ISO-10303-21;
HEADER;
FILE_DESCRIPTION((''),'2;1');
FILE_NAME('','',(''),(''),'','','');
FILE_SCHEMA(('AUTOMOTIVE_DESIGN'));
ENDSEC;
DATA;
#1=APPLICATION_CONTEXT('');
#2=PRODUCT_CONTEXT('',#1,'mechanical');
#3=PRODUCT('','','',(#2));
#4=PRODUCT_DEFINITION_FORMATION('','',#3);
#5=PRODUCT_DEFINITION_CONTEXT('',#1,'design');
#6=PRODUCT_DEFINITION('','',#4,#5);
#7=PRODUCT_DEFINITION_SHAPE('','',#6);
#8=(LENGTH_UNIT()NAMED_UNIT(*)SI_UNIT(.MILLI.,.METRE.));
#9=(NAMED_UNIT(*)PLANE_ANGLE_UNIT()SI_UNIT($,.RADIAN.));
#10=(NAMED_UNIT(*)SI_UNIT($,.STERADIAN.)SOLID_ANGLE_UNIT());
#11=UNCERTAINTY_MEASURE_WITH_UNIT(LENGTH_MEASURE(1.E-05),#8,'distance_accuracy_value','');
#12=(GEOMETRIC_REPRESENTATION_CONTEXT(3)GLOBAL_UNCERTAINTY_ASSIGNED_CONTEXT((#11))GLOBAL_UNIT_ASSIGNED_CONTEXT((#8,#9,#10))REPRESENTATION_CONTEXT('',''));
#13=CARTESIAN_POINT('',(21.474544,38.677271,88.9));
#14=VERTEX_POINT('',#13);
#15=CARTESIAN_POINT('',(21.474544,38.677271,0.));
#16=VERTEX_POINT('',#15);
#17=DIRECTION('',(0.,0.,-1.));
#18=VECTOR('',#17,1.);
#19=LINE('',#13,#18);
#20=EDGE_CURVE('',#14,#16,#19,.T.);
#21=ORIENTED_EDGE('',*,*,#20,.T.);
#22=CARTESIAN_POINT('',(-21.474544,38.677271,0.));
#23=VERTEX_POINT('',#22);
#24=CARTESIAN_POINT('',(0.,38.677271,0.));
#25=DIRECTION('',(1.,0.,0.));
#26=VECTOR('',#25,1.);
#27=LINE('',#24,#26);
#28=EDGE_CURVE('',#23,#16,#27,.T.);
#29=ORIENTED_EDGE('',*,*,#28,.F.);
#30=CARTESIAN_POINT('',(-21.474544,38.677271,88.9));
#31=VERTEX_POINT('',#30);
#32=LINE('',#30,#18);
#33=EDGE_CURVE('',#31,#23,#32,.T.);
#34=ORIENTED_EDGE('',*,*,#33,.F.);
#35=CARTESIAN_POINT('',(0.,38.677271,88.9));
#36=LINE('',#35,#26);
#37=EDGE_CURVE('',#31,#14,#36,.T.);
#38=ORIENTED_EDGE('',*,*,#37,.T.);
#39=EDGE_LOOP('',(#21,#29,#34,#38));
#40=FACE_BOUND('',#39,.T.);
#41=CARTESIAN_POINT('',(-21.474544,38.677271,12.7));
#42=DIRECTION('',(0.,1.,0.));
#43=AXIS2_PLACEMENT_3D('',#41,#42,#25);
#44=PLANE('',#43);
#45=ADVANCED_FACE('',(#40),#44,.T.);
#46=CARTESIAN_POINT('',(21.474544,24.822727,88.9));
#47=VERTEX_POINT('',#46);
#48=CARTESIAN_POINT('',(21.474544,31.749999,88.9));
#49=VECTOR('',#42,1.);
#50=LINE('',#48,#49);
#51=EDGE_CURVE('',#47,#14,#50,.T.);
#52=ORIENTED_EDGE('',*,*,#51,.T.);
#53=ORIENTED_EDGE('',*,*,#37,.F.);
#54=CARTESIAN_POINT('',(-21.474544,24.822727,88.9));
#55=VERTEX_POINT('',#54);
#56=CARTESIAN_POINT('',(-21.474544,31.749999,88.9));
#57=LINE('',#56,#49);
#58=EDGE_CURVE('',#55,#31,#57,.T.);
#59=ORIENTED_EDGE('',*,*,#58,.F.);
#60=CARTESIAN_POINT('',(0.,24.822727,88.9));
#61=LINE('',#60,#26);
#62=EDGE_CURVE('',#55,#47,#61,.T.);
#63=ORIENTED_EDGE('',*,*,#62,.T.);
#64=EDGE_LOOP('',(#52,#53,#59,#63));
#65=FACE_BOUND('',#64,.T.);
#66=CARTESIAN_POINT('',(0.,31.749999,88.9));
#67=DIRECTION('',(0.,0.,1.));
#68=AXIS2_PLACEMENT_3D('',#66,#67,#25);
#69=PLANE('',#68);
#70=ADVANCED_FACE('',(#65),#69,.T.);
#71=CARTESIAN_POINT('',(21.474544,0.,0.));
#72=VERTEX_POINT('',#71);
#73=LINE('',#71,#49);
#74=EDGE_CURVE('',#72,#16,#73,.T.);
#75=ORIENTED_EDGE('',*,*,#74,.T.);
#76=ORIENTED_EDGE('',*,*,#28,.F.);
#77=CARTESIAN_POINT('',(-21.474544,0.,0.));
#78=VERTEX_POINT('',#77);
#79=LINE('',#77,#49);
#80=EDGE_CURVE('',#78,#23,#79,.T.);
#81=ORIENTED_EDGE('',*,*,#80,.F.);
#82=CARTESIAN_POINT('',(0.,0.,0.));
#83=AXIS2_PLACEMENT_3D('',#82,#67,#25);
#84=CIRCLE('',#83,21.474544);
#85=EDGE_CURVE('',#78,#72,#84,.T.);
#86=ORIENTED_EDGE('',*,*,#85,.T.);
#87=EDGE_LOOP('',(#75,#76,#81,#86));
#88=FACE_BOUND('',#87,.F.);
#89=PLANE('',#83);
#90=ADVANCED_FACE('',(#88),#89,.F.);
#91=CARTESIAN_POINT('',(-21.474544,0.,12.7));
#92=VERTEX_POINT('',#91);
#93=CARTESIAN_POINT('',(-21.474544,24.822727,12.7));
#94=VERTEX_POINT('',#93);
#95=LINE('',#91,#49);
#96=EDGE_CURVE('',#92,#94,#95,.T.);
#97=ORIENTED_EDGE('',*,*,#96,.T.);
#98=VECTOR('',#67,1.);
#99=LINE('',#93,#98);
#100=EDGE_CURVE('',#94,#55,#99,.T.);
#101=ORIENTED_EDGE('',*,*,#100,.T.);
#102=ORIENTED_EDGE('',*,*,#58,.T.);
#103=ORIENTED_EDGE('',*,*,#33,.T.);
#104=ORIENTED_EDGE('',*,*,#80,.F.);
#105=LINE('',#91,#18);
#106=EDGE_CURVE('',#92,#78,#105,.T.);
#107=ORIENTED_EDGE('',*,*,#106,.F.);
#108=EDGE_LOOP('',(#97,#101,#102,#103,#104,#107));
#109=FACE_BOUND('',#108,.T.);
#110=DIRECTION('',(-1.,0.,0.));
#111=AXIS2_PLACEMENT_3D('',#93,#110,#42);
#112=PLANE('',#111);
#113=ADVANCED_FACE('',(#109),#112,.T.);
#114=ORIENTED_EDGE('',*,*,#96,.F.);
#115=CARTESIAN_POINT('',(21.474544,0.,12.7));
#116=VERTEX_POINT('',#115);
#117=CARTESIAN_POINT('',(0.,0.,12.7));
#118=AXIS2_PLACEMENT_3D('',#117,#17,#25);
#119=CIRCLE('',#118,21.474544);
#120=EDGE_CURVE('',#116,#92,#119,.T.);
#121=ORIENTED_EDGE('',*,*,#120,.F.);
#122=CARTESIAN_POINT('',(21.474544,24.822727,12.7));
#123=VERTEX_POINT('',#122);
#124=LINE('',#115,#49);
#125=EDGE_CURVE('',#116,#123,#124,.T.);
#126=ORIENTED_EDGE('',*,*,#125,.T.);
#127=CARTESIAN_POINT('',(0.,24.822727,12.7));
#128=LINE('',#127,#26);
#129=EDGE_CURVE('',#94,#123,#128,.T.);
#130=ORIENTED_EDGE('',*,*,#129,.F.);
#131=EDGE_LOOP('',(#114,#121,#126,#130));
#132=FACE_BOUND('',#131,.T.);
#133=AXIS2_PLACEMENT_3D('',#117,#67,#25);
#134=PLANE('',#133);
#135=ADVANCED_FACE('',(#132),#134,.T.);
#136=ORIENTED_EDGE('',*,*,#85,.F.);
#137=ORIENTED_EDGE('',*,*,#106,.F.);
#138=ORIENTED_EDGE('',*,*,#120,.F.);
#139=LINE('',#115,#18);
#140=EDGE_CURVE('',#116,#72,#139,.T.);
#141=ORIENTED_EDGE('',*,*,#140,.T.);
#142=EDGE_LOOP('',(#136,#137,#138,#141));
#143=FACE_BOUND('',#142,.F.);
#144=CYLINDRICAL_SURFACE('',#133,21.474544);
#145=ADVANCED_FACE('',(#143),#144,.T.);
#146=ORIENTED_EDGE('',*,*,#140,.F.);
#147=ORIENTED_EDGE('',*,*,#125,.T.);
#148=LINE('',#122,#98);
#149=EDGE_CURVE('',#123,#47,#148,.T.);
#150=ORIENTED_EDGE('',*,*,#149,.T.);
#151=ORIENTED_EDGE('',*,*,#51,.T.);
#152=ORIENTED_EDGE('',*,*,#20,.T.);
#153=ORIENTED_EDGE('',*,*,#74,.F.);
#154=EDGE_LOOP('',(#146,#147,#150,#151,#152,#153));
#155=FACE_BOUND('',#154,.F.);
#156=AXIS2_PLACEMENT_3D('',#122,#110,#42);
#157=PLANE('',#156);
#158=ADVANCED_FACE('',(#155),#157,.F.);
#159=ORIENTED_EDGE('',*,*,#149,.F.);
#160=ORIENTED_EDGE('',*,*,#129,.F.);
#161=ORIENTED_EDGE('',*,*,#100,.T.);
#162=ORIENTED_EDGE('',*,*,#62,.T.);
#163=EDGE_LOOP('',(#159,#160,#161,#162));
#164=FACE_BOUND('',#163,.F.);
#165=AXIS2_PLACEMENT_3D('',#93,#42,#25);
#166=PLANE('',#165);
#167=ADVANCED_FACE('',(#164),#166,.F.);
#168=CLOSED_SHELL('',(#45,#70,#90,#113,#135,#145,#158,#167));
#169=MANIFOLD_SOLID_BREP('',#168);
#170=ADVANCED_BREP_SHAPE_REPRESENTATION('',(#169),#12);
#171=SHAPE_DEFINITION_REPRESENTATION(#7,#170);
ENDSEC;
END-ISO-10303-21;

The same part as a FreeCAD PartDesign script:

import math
import FreeCAD as App
import Part
import Sketcher

V = App.Vector
Q = App.Units.Quantity

doc = App.newDocument("Part")
params = doc.addObject("Spreadsheet::Sheet", "Params")
for row, (alias, value) in enumerate([
    ("pad1_length", "0.5 in"),
    ("pocket1_length", "1 in"),
    ("pad2_length", "3 in"),
], start=1):
    params.set(f"A{row}", alias)
    params.set(f"B{row}", "=" + value)
    params.setAlias(f"B{row}", alias)

body = doc.addObject("PartDesign::Body", "Body")

sketch1 = body.newObject("Sketcher::SketchObject", "Sketch")
sketch1.AttachmentSupport = (doc.getObject("XY_Plane"), [""])
sketch1.MapMode = "FlatFace"
sketch1.addGeometry([
    Part.LineSegment(V(-21, 39, 0), V(-21, -39, 0)),
    Part.LineSegment(V(-21, -39, 0), V(21, -39, 0)),
    Part.LineSegment(V(21, -39, 0), V(21, 39, 0)),
    Part.LineSegment(V(21, 39, 0), V(-21, 39, 0)),
], False)
sketch1.addConstraint([
    Sketcher.Constraint("Coincident", 0, 2, 1, 1),
    Sketcher.Constraint("Coincident", 1, 2, 2, 1),
    Sketcher.Constraint("Coincident", 2, 2, 3, 1),
    Sketcher.Constraint("Coincident", 3, 2, 0, 1),
    Sketcher.Constraint("Vertical", 0),
    Sketcher.Constraint("Horizontal", 1),
    Sketcher.Constraint("Vertical", 2),
    Sketcher.Constraint("Horizontal", 3),
    Sketcher.Constraint("Symmetric", 0, 2, 2, 2, -1, 1),
    Sketcher.Constraint("DistanceX", 1, 1, 1, 2, Q("42.949088 mm")),
    Sketcher.Constraint("DistanceY", 0, 2, 0, 1, Q("77.354542 mm")),
])
pad1 = body.newObject("PartDesign::Pad", "Pad")
pad1.Profile = sketch1
pad1.setExpression("Length", "Params.pad1_length")

sketch2 = body.newObject("Sketcher::SketchObject", "Sketch001")
sketch2.AttachmentSupport = (doc.getObject("XY_Plane"), [""])
sketch2.MapMode = "FlatFace"
sketch2.AttachmentOffset = App.Placement(V(0, 0, 0.5 * 25.4), App.Rotation())
sketch2.addGeometry([
    Part.ArcOfCircle(Part.Circle(V(0, 0, 0), V(0, 0, 1), 21), math.radians(180), math.radians(360)),
    Part.LineSegment(V(-21, 0, 0), V(-21, -39, 0)),
    Part.LineSegment(V(-21, -39, 0), V(21, -39, 0)),
    Part.LineSegment(V(21, -39, 0), V(21, 0, 0)),
], False)
sketch2.addConstraint([
    Sketcher.Constraint("Tangent", 0, 1, 1, 1),
    Sketcher.Constraint("Coincident", 1, 2, 2, 1),
    Sketcher.Constraint("Coincident", 2, 2, 3, 1),
    Sketcher.Constraint("Tangent", 3, 2, 0, 2),
    Sketcher.Constraint("Vertical", 1),
    Sketcher.Constraint("Horizontal", 2),
    Sketcher.Constraint("Vertical", 3),
    Sketcher.Constraint("Coincident", 0, 3, -1, 1),
    Sketcher.Constraint("Radius", 0, Q("21.474544 mm")),
    Sketcher.Constraint("DistanceY", 1, 2, 1, 1, Q("38.677271 mm")),
])
pocket1 = body.newObject("PartDesign::Pocket", "Pocket")
pocket1.Profile = sketch2
pocket1.setExpression("Length", "Params.pocket1_length")

sketch3 = body.newObject("Sketcher::SketchObject", "Sketch002")
sketch3.AttachmentSupport = (doc.getObject("XY_Plane"), [""])
sketch3.MapMode = "FlatFace"
sketch3.AttachmentOffset = App.Placement(V(0, 0, 0.5 * 25.4), App.Rotation())
sketch3.addGeometry([
    Part.LineSegment(V(-21, 39, 0), V(-21, 25, 0)),
    Part.LineSegment(V(-21, 25, 0), V(21, 25, 0)),
    Part.LineSegment(V(21, 25, 0), V(21, 39, 0)),
    Part.LineSegment(V(21, 39, 0), V(-21, 39, 0)),
], False)
sketch3.addConstraint([
    Sketcher.Constraint("Coincident", 0, 2, 1, 1),
    Sketcher.Constraint("Coincident", 1, 2, 2, 1),
    Sketcher.Constraint("Coincident", 2, 2, 3, 1),
    Sketcher.Constraint("Coincident", 3, 2, 0, 1),
    Sketcher.Constraint("Vertical", 0),
    Sketcher.Constraint("Horizontal", 1),
    Sketcher.Constraint("Vertical", 2),
    Sketcher.Constraint("Horizontal", 3),
    Sketcher.Constraint("DistanceX", 1, 1, 1, 2, Q("42.949088 mm")),
    Sketcher.Constraint("DistanceY", 0, 2, 0, 1, Q("13.854544 mm")),
    Sketcher.Constraint("DistanceY", -1, 1, 2, 2, Q("38.677271 mm")),
    Sketcher.Constraint("DistanceX", 0, 2, -1, 1, Q("21.474544 mm")),
])
pad2 = body.newObject("PartDesign::Pad", "Pad001")
pad2.Profile = sketch3
pad2.setExpression("Length", "Params.pad2_length")

doc.recompute()
